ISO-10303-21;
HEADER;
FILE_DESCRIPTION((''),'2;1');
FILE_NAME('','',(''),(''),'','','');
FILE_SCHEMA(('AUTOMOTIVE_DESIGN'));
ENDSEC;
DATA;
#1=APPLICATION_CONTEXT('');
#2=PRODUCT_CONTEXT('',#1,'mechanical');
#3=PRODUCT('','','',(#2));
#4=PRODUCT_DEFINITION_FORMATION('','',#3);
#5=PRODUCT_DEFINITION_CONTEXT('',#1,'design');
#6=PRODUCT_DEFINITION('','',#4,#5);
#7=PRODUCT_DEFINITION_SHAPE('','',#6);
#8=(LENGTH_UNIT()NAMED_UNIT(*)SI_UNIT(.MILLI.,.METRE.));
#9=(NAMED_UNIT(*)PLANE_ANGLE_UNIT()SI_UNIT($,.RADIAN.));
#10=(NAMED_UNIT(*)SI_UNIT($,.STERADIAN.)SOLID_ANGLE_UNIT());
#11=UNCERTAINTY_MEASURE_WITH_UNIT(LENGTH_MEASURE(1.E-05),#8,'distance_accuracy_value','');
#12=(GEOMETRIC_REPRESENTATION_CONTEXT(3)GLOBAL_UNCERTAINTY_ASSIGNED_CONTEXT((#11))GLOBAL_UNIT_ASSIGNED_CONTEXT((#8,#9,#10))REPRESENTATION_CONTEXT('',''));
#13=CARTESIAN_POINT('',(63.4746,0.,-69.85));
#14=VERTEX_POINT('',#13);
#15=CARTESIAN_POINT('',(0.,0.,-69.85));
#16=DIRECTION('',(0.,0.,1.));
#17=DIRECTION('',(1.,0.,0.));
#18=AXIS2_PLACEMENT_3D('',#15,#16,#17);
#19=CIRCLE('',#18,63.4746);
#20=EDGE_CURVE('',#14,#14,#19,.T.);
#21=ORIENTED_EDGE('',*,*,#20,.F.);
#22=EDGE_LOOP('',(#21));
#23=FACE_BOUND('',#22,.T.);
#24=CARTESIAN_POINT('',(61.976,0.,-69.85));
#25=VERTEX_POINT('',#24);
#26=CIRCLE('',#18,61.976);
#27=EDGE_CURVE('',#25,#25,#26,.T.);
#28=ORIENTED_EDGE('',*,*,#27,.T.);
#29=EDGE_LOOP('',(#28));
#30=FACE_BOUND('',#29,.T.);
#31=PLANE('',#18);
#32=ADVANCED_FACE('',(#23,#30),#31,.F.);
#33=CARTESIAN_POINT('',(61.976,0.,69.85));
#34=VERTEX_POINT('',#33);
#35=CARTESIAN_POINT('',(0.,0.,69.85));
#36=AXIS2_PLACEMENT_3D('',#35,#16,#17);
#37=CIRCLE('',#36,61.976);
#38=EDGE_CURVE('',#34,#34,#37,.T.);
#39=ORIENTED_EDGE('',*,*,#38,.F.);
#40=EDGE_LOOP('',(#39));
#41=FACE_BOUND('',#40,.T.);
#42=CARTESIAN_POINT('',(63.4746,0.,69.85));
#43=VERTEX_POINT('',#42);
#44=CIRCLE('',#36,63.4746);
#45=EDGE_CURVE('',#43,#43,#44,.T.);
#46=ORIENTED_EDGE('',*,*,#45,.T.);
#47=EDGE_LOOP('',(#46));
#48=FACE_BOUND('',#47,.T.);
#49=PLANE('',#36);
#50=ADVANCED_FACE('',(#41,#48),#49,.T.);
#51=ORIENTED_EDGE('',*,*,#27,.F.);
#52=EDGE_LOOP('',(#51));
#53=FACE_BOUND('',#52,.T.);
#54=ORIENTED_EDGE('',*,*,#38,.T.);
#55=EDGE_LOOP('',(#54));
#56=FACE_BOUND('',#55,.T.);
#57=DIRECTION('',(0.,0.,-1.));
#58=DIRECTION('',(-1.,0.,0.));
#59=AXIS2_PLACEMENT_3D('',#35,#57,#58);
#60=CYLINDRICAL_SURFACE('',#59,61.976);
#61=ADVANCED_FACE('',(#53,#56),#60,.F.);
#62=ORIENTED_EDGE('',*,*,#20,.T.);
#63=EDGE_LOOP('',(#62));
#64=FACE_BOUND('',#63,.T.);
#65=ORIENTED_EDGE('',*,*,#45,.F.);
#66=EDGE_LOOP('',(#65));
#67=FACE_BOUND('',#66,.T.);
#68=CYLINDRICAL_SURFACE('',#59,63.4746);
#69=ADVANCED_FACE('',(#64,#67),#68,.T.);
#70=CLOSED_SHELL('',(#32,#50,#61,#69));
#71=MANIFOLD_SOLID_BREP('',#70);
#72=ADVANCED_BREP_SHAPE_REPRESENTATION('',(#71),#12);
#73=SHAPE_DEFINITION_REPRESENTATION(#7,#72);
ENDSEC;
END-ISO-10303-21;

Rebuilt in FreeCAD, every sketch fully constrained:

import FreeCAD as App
import Part
import Sketcher

V = App.Vector
Q = App.Units.Quantity

doc = App.newDocument("Part")
params = doc.addObject("Spreadsheet::Sheet", "Params")
for row, (alias, value) in enumerate([
    ("sketch1_diameter", "4.88 in"),
    ("sketch1_diameter2", "4.998 in"),
    ("pad1_length", "5.5 in"),
], start=1):
    params.set(f"A{row}", alias)
    params.set(f"B{row}", "=" + value)
    params.setAlias(f"B{row}", alias)

body = doc.addObject("PartDesign::Body", "Body")

# Sketch on XY plane
sketch1 = body.newObject("Sketcher::SketchObject", "Sketch")
sketch1.AttachmentSupport = (doc.getObject("XY_Plane"), [""])
sketch1.MapMode = "FlatFace"
sketch1.addGeometry([
    Part.Circle(V(0, 0, 0), V(0, 0, 1), 63),
    Part.Circle(V(0, 0, 0), V(0, 0, 1), 62),
], False)
sketch1.addConstraint([
    Sketcher.Constraint("Coincident", 0, 3, -1, 1),
    Sketcher.Constraint("Coincident", 1, 3, -1, 1),
    Sketcher.Constraint("Diameter", 1, Q("4.88 in")),
    Sketcher.Constraint("Diameter", 0, Q("4.998 in")),
])
sketch1.setExpression("Constraints[2]", "Params.sketch1_diameter")
sketch1.setExpression("Constraints[3]", "Params.sketch1_diameter2")
pad1 = body.newObject("PartDesign::Pad", "Pad")
pad1.Profile = sketch1
pad1.setExpression("Length", "Params.pad1_length")
pad1.Midplane = True

doc.recompute()
